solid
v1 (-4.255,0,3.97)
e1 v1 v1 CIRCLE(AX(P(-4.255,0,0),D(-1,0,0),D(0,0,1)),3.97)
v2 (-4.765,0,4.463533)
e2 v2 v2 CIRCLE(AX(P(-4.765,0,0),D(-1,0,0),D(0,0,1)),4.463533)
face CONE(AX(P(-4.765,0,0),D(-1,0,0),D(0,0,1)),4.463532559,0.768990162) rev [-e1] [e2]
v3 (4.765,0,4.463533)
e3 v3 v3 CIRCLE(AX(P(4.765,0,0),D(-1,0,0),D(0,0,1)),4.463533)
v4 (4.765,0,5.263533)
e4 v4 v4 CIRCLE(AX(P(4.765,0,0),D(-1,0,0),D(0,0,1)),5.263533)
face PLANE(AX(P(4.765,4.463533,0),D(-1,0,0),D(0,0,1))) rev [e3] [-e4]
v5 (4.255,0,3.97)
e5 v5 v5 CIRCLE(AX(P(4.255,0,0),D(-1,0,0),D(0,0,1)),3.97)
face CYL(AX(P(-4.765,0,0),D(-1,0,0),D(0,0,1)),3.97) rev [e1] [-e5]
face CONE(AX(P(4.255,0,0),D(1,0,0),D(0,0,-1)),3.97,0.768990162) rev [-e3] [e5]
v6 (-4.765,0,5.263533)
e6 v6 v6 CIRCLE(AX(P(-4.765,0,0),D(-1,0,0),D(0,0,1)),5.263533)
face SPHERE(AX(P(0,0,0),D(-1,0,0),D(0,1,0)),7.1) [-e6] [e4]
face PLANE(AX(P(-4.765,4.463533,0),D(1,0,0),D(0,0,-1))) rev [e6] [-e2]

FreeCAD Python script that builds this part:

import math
import FreeCAD as App
import Part
import Sketcher
from FreeCAD import Vector
Q = App.Units.Quantity

doc = App.newDocument("Part")
body = doc.addObject("PartDesign::Body", "Body")

# Sketch on XY plane
sketch1 = doc.addObject("Sketcher::SketchObject", "Sketch")
body.addObject(sketch1)
sketch1.AttachmentSupport = (doc.XY_Plane, [""])
sketch1.MapMode = "FlatFace"
sketch1.addGeometry([
    Part.LineSegment(Vector(-4.3, 4, 0), Vector(4.3, 4, 0)),  # 0
    Part.LineSegment(Vector(4.3, 4, 0), Vector(4.8, 4.5, 0)),  # 1
    Part.LineSegment(Vector(4.8, 4.5, 0), Vector(4.8, 5.3, 0)),  # 2
    Part.ArcOfCircle(Part.Circle(Vector(0, 0, 0), Vector(0, 0, 1), 7.1), math.radians(48), math.radians(132)),  # 3
    Part.LineSegment(Vector(-4.8, 5.3, 0), Vector(-4.8, 4.5, 0)),  # 4
    Part.LineSegment(Vector(-4.8, 4.5, 0), Vector(-4.3, 4, 0)),  # 5
], False)
sketch1.addConstraint([
    Sketcher.Constraint("Coincident", 0, 2, 1, 1),
    Sketcher.Constraint("Coincident", 1, 2, 2, 1),
    Sketcher.Constraint("Coincident", 2, 2, 3, 1),
    Sketcher.Constraint("Coincident", 3, 2, 4, 1),
    Sketcher.Constraint("Coincident", 4, 2, 5, 1),
    Sketcher.Constraint("Coincident", 5, 2, 0, 1),
    Sketcher.Constraint("Horizontal", 0),
    Sketcher.Constraint("Vertical", 2),
    Sketcher.Constraint("Vertical", 4),
    Sketcher.Constraint("Coincident", 3, 3, -1, 1),
    Sketcher.Constraint("Symmetric", 1, 2, 4, 2, -2),
    Sketcher.Constraint("Equal", 1, 5),
    Sketcher.Constraint("Radius", 3, Q("7.1 mm")),
    Sketcher.Constraint("DistanceY", 2, 1, 2, 2, Q("0.8 mm")),
    Sketcher.Constraint("DistanceX", 0, 1, 0, 2, Q("8.51 mm")),
    Sketcher.Constraint("DistanceY", -1, 1, 0, 2, Q("3.97 mm")),
    Sketcher.Constraint("DistanceX", 0, 2, 1, 2, Q("0.51 mm")),
])
revolution = doc.addObject("PartDesign::Revolution", "Revolution")
body.addObject(revolution)
revolution.Profile = sketch1
revolution.ReferenceAxis = (sketch1, ["H_Axis"])
revolution.Angle = 360

doc.recompute()
